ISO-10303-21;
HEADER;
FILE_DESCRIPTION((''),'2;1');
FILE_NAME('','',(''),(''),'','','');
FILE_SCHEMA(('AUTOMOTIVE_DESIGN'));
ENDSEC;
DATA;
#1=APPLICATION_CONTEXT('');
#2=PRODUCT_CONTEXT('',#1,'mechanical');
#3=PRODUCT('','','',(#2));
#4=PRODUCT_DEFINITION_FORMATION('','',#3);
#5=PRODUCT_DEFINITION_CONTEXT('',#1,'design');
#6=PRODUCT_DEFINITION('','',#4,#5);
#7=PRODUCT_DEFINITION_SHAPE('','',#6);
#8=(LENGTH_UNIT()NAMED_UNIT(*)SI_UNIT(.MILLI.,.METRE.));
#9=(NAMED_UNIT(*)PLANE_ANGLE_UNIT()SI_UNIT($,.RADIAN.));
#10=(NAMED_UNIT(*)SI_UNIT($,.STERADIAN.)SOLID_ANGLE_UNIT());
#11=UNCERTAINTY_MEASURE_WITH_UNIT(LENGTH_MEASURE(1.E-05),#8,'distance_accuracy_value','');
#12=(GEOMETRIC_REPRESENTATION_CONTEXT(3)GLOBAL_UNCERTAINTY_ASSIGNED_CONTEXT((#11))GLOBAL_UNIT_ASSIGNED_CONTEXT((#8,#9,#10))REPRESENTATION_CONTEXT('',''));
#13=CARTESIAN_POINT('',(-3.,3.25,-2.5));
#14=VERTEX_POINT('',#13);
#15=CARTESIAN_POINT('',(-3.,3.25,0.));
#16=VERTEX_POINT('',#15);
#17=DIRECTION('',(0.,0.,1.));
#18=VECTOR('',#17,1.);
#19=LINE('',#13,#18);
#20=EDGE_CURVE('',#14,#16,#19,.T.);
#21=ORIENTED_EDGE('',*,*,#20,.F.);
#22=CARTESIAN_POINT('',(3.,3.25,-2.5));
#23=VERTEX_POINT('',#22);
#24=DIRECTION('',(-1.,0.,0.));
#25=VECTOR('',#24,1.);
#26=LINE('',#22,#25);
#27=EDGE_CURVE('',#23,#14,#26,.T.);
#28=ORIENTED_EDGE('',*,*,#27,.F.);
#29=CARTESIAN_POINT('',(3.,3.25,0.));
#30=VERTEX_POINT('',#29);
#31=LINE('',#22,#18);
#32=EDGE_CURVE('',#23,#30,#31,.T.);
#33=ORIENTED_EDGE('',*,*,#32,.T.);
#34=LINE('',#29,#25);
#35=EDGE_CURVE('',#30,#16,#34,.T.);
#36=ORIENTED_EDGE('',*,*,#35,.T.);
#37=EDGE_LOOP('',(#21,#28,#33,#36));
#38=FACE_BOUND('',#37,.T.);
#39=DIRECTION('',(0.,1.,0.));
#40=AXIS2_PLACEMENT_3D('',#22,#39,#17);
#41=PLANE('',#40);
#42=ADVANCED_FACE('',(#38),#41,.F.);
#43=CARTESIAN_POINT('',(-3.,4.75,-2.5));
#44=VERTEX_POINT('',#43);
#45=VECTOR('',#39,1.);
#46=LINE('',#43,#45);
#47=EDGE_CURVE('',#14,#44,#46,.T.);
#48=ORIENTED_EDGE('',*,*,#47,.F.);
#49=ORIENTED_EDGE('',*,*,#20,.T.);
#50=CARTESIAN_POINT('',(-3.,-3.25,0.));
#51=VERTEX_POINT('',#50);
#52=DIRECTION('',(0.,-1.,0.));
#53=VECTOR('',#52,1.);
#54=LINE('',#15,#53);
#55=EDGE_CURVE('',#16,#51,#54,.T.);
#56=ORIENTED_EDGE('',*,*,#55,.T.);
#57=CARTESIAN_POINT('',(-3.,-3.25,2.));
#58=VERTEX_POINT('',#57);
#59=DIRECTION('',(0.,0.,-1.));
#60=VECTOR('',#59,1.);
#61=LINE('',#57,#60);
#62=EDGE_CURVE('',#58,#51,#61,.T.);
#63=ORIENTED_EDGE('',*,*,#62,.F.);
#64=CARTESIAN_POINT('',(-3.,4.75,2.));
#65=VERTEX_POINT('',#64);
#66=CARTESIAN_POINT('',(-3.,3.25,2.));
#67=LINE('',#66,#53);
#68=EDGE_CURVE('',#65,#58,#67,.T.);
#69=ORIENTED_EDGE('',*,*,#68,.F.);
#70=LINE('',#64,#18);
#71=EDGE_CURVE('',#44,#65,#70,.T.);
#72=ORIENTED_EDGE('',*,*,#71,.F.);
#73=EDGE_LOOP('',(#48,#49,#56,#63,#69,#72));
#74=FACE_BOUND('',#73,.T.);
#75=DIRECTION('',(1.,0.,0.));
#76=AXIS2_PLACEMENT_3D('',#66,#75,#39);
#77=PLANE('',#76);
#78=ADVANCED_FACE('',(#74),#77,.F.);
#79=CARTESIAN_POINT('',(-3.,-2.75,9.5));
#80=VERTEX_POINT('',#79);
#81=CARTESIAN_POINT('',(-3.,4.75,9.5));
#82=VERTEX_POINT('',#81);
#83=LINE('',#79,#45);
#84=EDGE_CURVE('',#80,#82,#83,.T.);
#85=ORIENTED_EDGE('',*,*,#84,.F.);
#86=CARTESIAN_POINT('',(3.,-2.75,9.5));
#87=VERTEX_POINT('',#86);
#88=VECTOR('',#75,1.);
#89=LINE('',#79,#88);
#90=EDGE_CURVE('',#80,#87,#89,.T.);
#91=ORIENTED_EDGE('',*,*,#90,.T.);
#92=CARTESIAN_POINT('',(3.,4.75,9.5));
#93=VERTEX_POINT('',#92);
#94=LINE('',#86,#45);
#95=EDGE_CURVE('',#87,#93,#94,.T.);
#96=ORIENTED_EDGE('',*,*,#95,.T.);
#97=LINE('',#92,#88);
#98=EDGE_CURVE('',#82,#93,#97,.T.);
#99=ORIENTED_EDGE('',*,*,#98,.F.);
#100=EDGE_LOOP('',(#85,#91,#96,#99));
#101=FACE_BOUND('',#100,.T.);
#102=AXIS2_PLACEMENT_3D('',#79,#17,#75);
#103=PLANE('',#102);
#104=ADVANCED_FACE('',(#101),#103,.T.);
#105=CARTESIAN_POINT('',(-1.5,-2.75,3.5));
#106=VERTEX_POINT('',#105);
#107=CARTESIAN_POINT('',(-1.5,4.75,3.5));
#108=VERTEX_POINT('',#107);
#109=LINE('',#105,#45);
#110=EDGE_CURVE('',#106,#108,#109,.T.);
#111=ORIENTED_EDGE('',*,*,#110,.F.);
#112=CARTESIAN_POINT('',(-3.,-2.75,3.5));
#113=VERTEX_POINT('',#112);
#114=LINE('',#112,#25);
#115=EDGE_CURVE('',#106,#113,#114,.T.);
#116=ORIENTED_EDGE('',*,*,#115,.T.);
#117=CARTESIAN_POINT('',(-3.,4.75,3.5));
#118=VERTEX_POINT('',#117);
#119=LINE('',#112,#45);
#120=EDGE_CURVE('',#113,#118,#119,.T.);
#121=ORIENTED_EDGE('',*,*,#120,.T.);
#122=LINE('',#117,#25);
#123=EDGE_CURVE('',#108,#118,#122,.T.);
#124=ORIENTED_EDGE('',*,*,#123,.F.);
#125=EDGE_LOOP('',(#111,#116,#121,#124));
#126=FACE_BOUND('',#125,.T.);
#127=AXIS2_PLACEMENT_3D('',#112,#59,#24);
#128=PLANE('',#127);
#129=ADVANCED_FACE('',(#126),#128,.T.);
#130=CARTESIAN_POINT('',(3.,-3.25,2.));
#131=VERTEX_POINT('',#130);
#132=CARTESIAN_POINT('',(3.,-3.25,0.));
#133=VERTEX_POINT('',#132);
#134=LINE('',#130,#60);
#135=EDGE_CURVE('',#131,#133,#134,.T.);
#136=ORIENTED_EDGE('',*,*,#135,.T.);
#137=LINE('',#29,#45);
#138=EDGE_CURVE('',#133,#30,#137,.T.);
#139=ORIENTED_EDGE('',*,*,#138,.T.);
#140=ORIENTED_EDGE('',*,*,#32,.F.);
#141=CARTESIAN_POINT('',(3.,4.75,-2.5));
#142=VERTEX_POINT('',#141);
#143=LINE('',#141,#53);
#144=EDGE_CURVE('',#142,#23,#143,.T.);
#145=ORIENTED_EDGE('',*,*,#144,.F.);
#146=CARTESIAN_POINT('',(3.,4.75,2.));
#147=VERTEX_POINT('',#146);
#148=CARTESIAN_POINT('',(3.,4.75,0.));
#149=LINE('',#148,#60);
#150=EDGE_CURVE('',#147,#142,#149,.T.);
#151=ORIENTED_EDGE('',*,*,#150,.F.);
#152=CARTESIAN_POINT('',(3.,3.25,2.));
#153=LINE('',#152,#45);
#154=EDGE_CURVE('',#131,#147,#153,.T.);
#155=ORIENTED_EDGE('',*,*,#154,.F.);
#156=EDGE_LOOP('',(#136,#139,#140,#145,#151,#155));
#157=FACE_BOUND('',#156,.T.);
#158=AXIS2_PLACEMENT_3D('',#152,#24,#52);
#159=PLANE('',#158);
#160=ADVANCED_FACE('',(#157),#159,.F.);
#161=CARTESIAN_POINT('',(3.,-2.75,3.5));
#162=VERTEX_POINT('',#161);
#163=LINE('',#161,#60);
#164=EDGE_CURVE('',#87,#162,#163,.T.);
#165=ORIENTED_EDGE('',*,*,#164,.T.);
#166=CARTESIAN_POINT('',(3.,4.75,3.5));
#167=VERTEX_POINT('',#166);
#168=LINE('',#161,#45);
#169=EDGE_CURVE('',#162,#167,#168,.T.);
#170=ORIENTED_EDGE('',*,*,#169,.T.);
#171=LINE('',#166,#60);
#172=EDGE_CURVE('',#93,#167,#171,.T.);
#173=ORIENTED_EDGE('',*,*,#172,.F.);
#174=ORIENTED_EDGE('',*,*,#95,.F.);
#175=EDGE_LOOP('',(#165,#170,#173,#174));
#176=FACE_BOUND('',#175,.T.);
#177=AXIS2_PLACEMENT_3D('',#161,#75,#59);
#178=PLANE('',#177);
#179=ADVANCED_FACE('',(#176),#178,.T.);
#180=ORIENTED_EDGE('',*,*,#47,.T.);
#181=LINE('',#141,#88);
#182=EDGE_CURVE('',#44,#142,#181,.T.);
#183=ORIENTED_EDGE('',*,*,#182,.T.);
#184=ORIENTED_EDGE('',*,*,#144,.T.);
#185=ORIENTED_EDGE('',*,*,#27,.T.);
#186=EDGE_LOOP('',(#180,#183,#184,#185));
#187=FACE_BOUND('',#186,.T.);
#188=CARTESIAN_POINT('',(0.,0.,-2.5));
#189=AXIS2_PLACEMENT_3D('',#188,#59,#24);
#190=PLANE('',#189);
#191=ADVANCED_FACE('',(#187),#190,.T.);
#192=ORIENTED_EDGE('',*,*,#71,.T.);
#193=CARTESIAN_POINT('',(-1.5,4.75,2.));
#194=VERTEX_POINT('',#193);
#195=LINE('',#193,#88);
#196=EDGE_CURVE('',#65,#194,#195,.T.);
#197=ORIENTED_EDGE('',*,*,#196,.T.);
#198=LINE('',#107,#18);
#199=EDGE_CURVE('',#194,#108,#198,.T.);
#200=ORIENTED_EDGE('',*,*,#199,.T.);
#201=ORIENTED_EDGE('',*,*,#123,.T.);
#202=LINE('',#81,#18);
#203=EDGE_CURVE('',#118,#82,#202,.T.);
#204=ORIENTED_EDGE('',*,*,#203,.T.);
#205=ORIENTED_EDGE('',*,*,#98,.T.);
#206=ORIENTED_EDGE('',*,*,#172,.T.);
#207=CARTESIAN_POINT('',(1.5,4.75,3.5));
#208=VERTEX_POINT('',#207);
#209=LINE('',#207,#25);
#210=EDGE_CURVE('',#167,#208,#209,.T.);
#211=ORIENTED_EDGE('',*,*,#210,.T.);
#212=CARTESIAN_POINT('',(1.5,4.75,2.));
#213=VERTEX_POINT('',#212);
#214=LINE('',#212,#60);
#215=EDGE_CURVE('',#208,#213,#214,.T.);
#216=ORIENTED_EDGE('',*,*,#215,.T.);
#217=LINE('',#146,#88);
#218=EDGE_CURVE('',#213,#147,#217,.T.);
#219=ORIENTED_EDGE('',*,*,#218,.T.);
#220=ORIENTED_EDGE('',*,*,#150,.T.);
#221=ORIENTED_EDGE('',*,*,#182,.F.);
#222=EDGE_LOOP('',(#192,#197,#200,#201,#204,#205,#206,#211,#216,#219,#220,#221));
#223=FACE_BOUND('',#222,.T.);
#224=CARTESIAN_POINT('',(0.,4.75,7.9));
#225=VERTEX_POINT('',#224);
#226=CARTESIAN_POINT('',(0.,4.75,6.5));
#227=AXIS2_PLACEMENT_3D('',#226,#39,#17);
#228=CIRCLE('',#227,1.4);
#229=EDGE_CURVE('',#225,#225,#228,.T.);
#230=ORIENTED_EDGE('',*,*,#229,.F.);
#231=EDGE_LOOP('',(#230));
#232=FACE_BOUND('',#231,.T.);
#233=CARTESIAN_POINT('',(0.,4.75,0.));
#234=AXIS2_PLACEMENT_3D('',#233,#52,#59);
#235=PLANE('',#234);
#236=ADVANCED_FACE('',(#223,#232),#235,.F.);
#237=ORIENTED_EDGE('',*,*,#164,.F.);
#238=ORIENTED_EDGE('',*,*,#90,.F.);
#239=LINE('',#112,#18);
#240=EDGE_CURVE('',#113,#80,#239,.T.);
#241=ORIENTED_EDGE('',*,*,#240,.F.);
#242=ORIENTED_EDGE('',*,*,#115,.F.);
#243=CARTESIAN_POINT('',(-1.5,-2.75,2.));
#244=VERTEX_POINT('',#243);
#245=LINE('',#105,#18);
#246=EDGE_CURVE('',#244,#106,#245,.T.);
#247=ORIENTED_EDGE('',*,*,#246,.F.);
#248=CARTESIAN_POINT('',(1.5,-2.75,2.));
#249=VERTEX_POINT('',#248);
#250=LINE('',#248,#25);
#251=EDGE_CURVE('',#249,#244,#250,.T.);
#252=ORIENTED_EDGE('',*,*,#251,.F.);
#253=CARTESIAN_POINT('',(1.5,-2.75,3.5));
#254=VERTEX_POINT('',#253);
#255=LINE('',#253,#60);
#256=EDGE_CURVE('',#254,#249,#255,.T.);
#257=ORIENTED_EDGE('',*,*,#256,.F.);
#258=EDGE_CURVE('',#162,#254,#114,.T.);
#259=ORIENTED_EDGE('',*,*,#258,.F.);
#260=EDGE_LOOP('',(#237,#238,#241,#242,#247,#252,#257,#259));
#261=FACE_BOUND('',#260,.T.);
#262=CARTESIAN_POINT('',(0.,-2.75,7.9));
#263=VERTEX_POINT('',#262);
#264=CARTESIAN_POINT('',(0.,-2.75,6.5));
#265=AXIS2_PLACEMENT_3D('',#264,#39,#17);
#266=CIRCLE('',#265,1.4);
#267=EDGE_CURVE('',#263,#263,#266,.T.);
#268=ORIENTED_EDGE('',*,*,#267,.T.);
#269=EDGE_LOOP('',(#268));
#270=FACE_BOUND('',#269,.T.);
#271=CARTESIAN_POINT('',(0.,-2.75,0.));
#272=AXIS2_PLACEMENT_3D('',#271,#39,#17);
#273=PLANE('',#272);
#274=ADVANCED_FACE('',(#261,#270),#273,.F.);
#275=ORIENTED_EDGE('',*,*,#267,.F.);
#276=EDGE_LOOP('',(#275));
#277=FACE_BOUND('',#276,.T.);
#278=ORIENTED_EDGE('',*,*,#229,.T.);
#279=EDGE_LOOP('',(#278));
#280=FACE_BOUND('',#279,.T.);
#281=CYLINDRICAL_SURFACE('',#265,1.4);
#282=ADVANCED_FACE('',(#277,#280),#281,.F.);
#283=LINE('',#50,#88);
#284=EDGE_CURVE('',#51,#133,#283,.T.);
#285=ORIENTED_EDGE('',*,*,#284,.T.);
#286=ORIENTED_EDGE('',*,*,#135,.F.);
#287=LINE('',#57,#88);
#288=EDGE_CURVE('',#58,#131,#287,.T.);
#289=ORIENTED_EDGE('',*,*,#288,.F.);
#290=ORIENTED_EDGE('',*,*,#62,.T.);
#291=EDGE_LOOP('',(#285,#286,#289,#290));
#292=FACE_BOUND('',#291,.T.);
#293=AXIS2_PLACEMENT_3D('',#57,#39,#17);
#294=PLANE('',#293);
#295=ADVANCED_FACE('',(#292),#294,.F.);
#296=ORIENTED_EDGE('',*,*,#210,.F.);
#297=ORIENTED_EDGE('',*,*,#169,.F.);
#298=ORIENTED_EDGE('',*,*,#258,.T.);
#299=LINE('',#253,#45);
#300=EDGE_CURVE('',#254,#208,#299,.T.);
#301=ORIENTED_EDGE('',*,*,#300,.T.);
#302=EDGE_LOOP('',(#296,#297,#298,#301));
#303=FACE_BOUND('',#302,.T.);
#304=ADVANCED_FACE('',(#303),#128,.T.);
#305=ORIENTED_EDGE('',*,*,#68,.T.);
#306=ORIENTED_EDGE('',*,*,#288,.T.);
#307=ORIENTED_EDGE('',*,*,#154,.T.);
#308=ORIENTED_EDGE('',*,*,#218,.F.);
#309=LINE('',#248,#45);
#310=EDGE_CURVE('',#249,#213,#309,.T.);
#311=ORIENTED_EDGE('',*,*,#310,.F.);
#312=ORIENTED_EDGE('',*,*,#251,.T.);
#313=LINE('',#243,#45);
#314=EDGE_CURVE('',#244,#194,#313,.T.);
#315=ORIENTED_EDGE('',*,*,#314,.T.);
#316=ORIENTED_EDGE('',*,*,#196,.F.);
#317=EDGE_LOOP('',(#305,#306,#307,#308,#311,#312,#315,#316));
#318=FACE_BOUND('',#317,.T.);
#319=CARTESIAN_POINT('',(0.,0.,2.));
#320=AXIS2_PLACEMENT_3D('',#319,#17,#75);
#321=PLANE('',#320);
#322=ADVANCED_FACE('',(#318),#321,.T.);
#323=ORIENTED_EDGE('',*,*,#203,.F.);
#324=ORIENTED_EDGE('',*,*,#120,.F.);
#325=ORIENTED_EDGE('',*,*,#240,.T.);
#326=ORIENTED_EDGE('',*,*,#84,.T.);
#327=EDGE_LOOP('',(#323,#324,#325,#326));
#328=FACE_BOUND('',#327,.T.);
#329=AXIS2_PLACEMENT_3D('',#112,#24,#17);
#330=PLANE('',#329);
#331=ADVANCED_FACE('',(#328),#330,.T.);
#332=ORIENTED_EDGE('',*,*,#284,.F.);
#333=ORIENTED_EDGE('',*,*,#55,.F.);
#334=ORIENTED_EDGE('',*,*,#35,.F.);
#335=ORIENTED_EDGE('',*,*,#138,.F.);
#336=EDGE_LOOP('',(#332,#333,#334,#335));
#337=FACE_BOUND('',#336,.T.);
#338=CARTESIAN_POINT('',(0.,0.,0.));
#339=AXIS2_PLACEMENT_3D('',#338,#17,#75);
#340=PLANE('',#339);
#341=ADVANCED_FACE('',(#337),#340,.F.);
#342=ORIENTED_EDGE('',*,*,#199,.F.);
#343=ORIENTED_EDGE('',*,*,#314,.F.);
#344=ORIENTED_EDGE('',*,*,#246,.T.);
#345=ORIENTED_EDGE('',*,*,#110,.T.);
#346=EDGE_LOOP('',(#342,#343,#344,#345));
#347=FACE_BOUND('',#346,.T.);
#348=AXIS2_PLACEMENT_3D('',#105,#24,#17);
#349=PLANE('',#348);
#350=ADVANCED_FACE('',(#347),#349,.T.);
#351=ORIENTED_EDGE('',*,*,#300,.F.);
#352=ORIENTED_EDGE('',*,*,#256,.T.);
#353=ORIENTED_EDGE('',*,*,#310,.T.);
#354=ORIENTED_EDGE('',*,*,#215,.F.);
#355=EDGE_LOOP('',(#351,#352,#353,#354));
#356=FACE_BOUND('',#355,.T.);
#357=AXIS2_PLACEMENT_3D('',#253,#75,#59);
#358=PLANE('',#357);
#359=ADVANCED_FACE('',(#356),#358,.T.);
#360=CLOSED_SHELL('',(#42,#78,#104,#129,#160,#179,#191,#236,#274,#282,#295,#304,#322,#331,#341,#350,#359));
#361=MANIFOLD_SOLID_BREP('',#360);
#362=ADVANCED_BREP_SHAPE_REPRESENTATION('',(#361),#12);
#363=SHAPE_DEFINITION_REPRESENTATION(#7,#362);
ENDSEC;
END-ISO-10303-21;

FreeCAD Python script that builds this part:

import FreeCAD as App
import Part
import Sketcher

V = App.Vector


def add_polygon(sketch, points):
    """Adds a closed chain of lines whose ends are joined by coincident constraints."""
    first, n = sketch.GeometryCount, len(points)
    for a, b in zip(points, points[1:] + points[:1]):
        sketch.addGeometry(Part.LineSegment(App.Vector(*a, 0), App.Vector(*b, 0)), False)
    for i in range(n):
        sketch.addConstraint(Sketcher.Constraint("Coincident", first + i, 2, first + (i + 1) % n, 1))

doc = App.newDocument("Part")
body = doc.addObject("PartDesign::Body", "Body")

sketch1 = doc.addObject("Sketcher::SketchObject", "Sketch")
body.addObject(sketch1)
sketch1.AttachmentSupport = (doc.XY_Plane, [""])
sketch1.MapMode = "FlatFace"
add_polygon(sketch1, [(-3, 3), (-3, -3), (3, -3), (3, 3)])
sketch1.addConstraint(Sketcher.Constraint("Vertical", 0))
sketch1.addConstraint(Sketcher.Constraint("Horizontal", 1))
sketch1.addConstraint(Sketcher.Constraint("Vertical", 2))
sketch1.addConstraint(Sketcher.Constraint("Horizontal", 3))
sketch1.addConstraint(Sketcher.Constraint("Symmetric", 0, 2, 2, 2, -1, 1))
sketch1.addConstraint(Sketcher.Constraint("DistanceX", 1, 1, 1, 2, 6.0))
sketch1.addConstraint(Sketcher.Constraint("DistanceY", 0, 2, 0, 1, 6.5))
pad1 = doc.addObject("PartDesign::Pad", "Pad")
body.addObject(pad1)
pad1.Profile = sketch1
pad1.Length = 2

sketch2 = doc.addObject("Sketcher::SketchObject", "Sketch001")
body.addObject(sketch2)
sketch2.AttachmentSupport = (doc.XZ_Plane, [""])
sketch2.MapMode = "FlatFace"
sketch2.AttachmentOffset = App.Placement(V(0, 0, -3.25), App.Rotation())
add_polygon(sketch2, [(-1.5, 2), (-1.5, 3.5), (1.5, 3.5), (1.5, 2)])
sketch2.addConstraint(Sketcher.Constraint("Vertical", 0))
sketch2.addConstraint(Sketcher.Constraint("Horizontal", 1))
sketch2.addConstraint(Sketcher.Constraint("Vertical", 2))
sketch2.addConstraint(Sketcher.Constraint("Horizontal", 3))
sketch2.addConstraint(Sketcher.Constraint("DistanceX", 1, 1, 1, 2, 3.0))
sketch2.addConstraint(Sketcher.Constraint("DistanceY", 0, 1, 0, 2, 1.5))
sketch2.addConstraint(Sketcher.Constraint("DistanceY", -1, 1, 2, 2, 2.0))
sketch2.addConstraint(Sketcher.Constraint("DistanceX", 0, 2, -1, 1, 1.5))
pad2 = doc.addObject("PartDesign::Pad", "Pad001")
body.addObject(pad2)
pad2.Profile = sketch2
pad2.Length = 6

sketch3 = doc.addObject("Sketcher::SketchObject", "Sketch002")
body.addObject(sketch3)
sketch3.AttachmentSupport = (doc.XZ_Plane, [""])
sketch3.MapMode = "FlatFace"
sketch3.AttachmentOffset = App.Placement(V(0, 0, -3.25), App.Rotation())
add_polygon(sketch3, [(-3, 3.5), (-3, 9.5), (3, 9.5), (3, 3.5)])
sketch3.addGeometry(Part.Circle(V(0, 6.5, 0), V(0, 0, 1), 1.4), False)
sketch3.addConstraint(Sketcher.Constraint("Vertical", 0))
sketch3.addConstraint(Sketcher.Constraint("Horizontal", 1))
sketch3.addConstraint(Sketcher.Constraint("Vertical", 2))
sketch3.addConstraint(Sketcher.Constraint("Horizontal", 3))
sketch3.addConstraint(Sketcher.Constraint("PointOnObject", 4, 3, -2))
sketch3.addConstraint(Sketcher.Constraint("Equal", 3, 0))
sketch3.addConstraint(Sketcher.Constraint("Diameter", 4, 2.8))
sketch3.addConstraint(Sketcher.Constraint("DistanceX", 1, 1, 1, 2, 6.0))
sketch3.addConstraint(Sketcher.Constraint("DistanceX", 0, 2, -1, 1, 3.0))
sketch3.addConstraint(Sketcher.Constraint("DistanceY", 4, 3, 0, 2, 3.0))
sketch3.addConstraint(Sketcher.Constraint("DistanceY", -1, 1, 4, 3, 6.5))
pad3 = doc.addObject("PartDesign::Pad", "Pad002")
body.addObject(pad3)
pad3.Profile = sketch3
pad3.Length = 6

sketch4 = doc.addObject("Sketcher::SketchObject", "Sketch003")
body.addObject(sketch4)
sketch4.AttachmentSupport = (doc.XZ_Plane, [""])
sketch4.MapMode = "FlatFace"
sketch4.AttachmentOffset = App.Placement(V(0, 0, -4.75), App.Rotation())
add_polygon(sketch4, [(-3, 9.5), (3, 9.5), (3, 3.5), (1.5, 3.5), (1.5, 2), (3, 2), (3, 0), (-3, 0), (-3, 2), (-1.5, 2), (-1.5, 3.5), (-3, 3.5)])
sketch4.addGeometry(Part.Circle(V(0, 6.5, 0), V(0, 0, 1), 1.4), False)
sketch4.addConstraint(Sketcher.Constraint("Horizontal", 0))
sketch4.addConstraint(Sketcher.Constraint("Vertical", 1))
sketch4.addConstraint(Sketcher.Constraint("Horizontal", 2))
sketch4.addConstraint(Sketcher.Constraint("Vertical", 3))
sketch4.addConstraint(Sketcher.Constraint("Horizontal", 4))
sketch4.addConstraint(Sketcher.Constraint("Vertical", 5))
sketch4.addConstraint(Sketcher.Constraint("Horizontal", 6))
sketch4.addConstraint(Sketcher.Constraint("Vertical", 7))
sketch4.addConstraint(Sketcher.Constraint("Horizontal", 8))
sketch4.addConstraint(Sketcher.Constraint("Vertical", 9))
sketch4.addConstraint(Sketcher.Constraint("Horizontal", 10))
sketch4.addConstraint(Sketcher.Constraint("Vertical", 11))
sketch4.addConstraint(Sketcher.Constraint("Symmetric", 5, 2, 6, 2, -1, 1))
sketch4.addConstraint(Sketcher.Constraint("Symmetric", 3, 2, 8, 2, -2))
sketch4.addConstraint(Sketcher.Constraint("Symmetric", 1, 2, 10, 2, -2))
sketch4.addConstraint(Sketcher.Constraint("PointOnObject", 12, 3, -2))
sketch4.addConstraint(Sketcher.Constraint("Vertical", 1, 2, 4, 2))
sketch4.addConstraint(Sketcher.Constraint("Equal", 6, 1))
sketch4.addConstraint(Sketcher.Constraint("Equal", 10, 3))
sketch4.addConstraint(Sketcher.Constraint("Diameter", 12, 2.8))
sketch4.addConstraint(Sketcher.Constraint("DistanceX", 0, 1, 0, 2, 6.0))
sketch4.addConstraint(Sketcher.Constraint("DistanceY", 5, 2, 5, 1, 2.0))
sketch4.addConstraint(Sketcher.Constraint("DistanceX", 2, 2, 2, 1, 1.5))
sketch4.addConstraint(Sketcher.Constraint("DistanceY", 12, 3, 0, 2, 3.0))
pad4 = doc.addObject("PartDesign::Pad", "Pad003")
body.addObject(pad4)
pad4.Profile = sketch4
pad4.Length = 1.5

sketch5 = doc.addObject("Sketcher::SketchObject", "Sketch004")
body.addObject(sketch5)
sketch5.AttachmentSupport = (doc.XY_Plane, [""])
sketch5.MapMode = "FlatFace"
add_polygon(sketch5, [(3, 4.8), (3, 3.2), (-3, 3.2), (-3, 4.8)])
sketch5.addConstraint(Sketcher.Constraint("Vertical", 0))
sketch5.addConstraint(Sketcher.Constraint("Horizontal", 1))
sketch5.addConstraint(Sketcher.Constraint("Vertical", 2))
sketch5.addConstraint(Sketcher.Constraint("Horizontal", 3))
sketch5.addConstraint(Sketcher.Constraint("DistanceX", 1, 2, 1, 1, 6.0))
sketch5.addConstraint(Sketcher.Constraint("DistanceY", 0, 2, 0, 1, 1.5))
sketch5.addConstraint(Sketcher.Constraint("DistanceX", -1, 1, 0, 2, 3.0))
sketch5.addConstraint(Sketcher.Constraint("DistanceY", -1, 1, 0, 2, 3.25))
pad5 = doc.addObject("PartDesign::Pad", "Pad004")
body.addObject(pad5)
pad5.Profile = sketch5
pad5.Length = 2.5
pad5.Reversed = True

doc.recompute()
